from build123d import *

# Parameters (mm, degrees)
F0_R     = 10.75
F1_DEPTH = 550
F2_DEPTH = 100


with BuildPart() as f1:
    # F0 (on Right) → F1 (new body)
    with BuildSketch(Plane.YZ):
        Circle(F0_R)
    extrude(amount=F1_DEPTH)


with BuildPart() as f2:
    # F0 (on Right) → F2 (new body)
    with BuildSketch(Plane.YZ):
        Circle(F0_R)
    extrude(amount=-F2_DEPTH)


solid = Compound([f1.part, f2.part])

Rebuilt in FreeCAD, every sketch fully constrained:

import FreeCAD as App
import Part
import Sketcher

V = App.Vector
Q = App.Units.Quantity

doc = App.newDocument("Part")
body = doc.addObject("PartDesign::Body", "Body")

# Sketch on YZ plane
sketch1 = body.newObject("Sketcher::SketchObject", "Sketch")
sketch1.AttachmentSupport = (doc.getObject("YZ_Plane"), [""])
sketch1.MapMode = "FlatFace"
sketch1.addGeometry(Part.Circle(V(0, 0, 0), V(0, 0, 1), 10.75), False)
sketch1.addConstraint([
    Sketcher.Constraint("Coincident", 0, 3, -1, 1),
    Sketcher.Constraint("Diameter", 0, Q("21.5 mm")),
])
pad1 = body.newObject("PartDesign::Pad", "Pad")
pad1.Profile = sketch1
pad1.Length = 550
body2 = doc.addObject("PartDesign::Body", "Body001")

# Sketch on YZ plane
sketch2 = body2.newObject("Sketcher::SketchObject", "Sketch001")
sketch2.AttachmentSupport = (doc.getObject("YZ_Plane001"), [""])
sketch2.MapMode = "FlatFace"
sketch2.addGeometry(Part.Circle(V(0, 0, 0), V(0, 0, 1), 10.75), False)
sketch2.addConstraint([
    Sketcher.Constraint("Coincident", 0, 3, -1, 1),
    Sketcher.Constraint("Diameter", 0, Q("21.5 mm")),
])
pad2 = body2.newObject("PartDesign::Pad", "Pad001")
pad2.Profile = sketch2
pad2.Length = 100
pad2.Reversed = True

doc.recompute()
